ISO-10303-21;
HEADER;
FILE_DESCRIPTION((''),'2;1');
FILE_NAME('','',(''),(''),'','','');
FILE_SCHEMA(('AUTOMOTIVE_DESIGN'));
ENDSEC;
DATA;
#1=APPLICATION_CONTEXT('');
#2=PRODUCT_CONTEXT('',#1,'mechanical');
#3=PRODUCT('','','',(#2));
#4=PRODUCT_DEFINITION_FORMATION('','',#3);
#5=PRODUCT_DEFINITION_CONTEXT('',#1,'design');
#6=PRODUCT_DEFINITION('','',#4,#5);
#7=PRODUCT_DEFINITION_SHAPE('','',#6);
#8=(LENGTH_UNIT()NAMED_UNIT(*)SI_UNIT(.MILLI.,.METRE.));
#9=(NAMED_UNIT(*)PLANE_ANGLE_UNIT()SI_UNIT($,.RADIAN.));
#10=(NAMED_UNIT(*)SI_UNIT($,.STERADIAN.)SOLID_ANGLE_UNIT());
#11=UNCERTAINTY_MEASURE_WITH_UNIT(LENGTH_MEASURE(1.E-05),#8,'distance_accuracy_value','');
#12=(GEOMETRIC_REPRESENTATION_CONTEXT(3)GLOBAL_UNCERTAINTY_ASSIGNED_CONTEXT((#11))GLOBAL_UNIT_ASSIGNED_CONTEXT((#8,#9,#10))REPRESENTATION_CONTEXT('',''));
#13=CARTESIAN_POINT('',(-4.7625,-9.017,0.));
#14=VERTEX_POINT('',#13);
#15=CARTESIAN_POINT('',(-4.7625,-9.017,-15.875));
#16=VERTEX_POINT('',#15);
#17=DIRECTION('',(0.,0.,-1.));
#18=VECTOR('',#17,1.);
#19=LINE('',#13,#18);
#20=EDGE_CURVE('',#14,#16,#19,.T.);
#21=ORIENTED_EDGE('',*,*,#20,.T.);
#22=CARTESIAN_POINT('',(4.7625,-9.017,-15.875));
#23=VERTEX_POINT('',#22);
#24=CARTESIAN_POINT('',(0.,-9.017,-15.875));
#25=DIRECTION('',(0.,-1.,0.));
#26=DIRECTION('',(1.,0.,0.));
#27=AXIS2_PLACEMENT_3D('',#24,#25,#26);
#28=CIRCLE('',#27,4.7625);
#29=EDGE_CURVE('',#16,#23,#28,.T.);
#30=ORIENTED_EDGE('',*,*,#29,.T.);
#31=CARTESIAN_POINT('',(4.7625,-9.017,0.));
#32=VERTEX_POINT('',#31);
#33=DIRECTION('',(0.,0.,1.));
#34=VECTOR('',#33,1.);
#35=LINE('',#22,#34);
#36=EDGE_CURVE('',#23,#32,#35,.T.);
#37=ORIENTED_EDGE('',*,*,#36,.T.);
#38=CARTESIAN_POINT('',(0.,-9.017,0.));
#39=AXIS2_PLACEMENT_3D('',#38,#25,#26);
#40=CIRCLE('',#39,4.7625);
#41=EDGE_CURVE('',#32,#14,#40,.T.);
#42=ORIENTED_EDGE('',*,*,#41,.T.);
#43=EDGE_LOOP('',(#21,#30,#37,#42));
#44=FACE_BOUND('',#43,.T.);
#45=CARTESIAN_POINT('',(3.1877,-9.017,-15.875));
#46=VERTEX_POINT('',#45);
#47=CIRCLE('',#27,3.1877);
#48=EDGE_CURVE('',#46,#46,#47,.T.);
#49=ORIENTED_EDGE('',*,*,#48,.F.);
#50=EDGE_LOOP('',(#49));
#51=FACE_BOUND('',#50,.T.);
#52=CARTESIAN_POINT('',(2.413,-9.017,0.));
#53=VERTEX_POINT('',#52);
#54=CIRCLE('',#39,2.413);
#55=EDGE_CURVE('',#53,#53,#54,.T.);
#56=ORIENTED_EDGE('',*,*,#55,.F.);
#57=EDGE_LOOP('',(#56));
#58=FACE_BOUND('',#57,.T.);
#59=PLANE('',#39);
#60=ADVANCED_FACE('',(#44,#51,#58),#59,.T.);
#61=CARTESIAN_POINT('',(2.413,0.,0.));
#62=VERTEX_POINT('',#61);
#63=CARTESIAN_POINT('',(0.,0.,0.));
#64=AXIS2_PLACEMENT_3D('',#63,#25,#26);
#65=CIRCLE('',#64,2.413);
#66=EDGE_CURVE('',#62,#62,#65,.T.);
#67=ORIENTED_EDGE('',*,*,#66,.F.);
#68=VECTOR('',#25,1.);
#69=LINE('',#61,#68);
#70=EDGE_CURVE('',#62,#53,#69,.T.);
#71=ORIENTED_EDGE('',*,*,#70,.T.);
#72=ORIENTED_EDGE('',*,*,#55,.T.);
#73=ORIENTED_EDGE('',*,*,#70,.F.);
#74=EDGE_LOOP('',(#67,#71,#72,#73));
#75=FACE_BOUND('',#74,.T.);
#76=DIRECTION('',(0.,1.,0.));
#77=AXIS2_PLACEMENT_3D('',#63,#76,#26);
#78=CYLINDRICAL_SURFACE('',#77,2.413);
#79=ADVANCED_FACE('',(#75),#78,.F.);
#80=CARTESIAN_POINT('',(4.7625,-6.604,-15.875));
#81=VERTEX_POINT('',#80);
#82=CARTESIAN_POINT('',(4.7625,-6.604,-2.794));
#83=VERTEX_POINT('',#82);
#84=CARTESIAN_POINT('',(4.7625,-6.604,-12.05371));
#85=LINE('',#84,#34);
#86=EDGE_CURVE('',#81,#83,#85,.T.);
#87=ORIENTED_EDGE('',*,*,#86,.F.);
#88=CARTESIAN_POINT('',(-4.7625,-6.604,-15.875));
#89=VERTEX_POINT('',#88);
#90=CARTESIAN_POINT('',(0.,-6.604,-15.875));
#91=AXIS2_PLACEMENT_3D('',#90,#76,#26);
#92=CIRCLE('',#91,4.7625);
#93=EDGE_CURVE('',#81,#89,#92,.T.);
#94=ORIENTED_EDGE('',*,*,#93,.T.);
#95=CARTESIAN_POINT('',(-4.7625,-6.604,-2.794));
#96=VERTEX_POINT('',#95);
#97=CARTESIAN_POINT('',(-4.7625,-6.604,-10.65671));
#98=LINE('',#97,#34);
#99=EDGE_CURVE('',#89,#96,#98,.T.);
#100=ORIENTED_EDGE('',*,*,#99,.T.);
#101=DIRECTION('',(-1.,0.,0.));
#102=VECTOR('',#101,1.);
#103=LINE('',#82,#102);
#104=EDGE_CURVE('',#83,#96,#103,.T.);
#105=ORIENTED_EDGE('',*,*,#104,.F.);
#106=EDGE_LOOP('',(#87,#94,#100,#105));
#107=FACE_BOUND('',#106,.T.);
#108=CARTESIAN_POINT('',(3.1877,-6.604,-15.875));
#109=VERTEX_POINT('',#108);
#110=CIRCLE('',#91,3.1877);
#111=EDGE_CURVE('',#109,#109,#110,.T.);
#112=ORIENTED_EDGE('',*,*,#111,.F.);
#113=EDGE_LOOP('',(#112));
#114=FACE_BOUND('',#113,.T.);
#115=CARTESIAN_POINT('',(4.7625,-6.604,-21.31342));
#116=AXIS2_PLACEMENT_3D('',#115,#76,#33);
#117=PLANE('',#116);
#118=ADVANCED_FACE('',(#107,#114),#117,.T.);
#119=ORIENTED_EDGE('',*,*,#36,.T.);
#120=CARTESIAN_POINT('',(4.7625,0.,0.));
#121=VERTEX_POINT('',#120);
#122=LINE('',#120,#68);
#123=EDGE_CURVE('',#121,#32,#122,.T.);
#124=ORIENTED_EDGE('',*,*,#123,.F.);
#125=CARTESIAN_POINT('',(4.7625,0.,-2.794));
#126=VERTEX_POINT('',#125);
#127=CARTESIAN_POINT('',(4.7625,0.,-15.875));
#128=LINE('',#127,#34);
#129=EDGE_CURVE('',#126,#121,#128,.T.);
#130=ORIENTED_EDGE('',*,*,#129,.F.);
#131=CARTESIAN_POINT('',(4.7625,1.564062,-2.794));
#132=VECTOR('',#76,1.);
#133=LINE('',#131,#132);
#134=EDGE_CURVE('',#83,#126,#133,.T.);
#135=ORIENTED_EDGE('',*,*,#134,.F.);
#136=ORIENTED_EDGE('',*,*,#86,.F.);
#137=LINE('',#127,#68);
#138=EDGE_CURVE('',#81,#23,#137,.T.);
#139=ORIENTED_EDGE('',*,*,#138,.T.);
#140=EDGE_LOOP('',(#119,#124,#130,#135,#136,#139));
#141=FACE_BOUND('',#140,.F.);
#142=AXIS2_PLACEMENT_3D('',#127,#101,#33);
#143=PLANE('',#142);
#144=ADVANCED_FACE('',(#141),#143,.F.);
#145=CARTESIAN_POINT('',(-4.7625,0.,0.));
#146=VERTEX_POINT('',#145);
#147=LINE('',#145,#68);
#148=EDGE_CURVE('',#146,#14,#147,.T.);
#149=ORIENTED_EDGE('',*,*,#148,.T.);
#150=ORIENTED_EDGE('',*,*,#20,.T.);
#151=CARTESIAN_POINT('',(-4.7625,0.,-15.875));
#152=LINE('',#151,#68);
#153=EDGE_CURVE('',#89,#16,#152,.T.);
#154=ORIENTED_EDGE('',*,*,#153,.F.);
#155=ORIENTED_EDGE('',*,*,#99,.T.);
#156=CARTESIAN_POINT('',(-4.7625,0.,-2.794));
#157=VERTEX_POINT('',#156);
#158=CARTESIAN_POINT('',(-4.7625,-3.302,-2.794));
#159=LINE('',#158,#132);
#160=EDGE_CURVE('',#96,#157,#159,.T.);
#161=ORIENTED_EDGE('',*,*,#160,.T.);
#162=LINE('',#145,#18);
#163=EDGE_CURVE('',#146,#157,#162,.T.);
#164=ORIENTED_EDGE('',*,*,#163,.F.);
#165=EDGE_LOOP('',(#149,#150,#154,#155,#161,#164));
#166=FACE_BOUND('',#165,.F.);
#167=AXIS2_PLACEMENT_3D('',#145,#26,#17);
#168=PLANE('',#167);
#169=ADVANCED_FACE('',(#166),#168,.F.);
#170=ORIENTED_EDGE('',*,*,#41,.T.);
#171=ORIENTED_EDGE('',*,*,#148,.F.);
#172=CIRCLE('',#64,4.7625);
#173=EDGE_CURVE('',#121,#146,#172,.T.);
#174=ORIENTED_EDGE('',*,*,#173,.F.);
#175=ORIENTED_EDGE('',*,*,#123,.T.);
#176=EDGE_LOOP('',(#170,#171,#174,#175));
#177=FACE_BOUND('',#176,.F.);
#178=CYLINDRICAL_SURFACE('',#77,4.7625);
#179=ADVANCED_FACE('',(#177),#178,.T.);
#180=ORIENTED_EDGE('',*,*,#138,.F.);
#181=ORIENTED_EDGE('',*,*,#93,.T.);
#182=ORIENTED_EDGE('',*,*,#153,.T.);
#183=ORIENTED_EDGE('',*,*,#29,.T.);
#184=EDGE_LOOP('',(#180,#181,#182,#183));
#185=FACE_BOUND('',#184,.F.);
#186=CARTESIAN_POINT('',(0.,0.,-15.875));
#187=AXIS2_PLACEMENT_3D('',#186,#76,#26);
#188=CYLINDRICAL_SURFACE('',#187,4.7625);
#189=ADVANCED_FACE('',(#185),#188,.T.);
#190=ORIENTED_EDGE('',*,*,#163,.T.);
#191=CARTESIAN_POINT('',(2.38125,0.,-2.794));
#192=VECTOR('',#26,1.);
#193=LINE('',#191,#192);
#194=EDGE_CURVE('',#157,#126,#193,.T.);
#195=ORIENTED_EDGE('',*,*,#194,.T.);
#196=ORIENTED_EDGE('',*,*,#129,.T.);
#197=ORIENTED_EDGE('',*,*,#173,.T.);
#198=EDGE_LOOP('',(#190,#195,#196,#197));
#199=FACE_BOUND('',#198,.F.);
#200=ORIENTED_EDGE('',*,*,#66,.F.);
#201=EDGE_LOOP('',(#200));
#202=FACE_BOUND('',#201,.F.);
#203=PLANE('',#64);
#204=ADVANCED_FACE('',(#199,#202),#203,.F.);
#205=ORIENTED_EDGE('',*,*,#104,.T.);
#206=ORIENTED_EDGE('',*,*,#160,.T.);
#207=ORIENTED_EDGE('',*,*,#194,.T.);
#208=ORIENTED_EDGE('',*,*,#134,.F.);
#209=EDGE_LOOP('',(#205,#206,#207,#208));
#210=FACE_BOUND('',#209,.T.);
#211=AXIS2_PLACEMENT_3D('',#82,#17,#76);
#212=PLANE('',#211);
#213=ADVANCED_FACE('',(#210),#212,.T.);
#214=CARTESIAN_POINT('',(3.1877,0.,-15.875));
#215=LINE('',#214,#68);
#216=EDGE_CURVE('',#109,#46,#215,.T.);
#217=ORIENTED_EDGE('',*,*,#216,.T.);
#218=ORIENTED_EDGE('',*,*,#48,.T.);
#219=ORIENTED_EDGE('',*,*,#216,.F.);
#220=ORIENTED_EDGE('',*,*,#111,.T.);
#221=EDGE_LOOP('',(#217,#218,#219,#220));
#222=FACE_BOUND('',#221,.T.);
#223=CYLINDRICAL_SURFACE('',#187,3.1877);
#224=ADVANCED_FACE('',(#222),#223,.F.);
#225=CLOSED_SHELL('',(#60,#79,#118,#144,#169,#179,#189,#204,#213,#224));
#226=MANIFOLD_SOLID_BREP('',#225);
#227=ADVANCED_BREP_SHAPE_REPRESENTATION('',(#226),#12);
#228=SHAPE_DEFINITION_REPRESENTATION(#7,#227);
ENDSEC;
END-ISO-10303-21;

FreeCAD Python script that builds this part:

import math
import FreeCAD as App
import Part
import Sketcher

V = App.Vector
Q = App.Units.Quantity

doc = App.newDocument("Part")
body = doc.addObject("PartDesign::Body", "Body")

sketch1 = body.newObject("Sketcher::SketchObject", "Sketch")
sketch1.AttachmentSupport = (doc.getObject("XZ_Plane"), [""])
sketch1.MapMode = "FlatFace"
sketch1.addGeometry([
    Part.ArcOfCircle(Part.Circle(V(0, 0, 0), V(0, 0, 1), 4.8), math.radians(0), math.radians(180)),
    Part.LineSegment(V(-4.8, 0, 0), V(-4.8, -15.9, 0)),
    Part.ArcOfCircle(Part.Circle(V(0, -15.9, 0), V(0, 0, 1), 4.8), math.radians(180), math.radians(360)),
    Part.LineSegment(V(4.8, -15.9, 0), V(4.8, 0, 0)),
    Part.Circle(V(0, -15.9, 0), V(0, 0, 1), 3.2),
    Part.Circle(V(0, 0, 0), V(0, 0, 1), 2.4),
], False)
sketch1.addConstraint([
    Sketcher.Constraint("Tangent", 0, 2, 1, 1),
    Sketcher.Constraint("Tangent", 1, 2, 2, 1),
    Sketcher.Constraint("Tangent", 2, 2, 3, 1),
    Sketcher.Constraint("Tangent", 3, 2, 0, 1),
    Sketcher.Constraint("Vertical", 1),
    Sketcher.Constraint("Vertical", 3),
    Sketcher.Constraint("Coincident", 0, 3, -1, 1),
    Sketcher.Constraint("Coincident", 5, 3, -1, 1),
    Sketcher.Constraint("Coincident", 4, 3, 2, 3),
    Sketcher.Constraint("Diameter", 5, Q("0.19 in")),
    Sketcher.Constraint("Diameter", 4, Q("0.251 in")),
    Sketcher.Constraint("Radius", 0, Q("0.1875 in")),
    Sketcher.Constraint("DistanceY", 1, 2, 1, 1, Q("0.625 in")),
])
pad1 = body.newObject("PartDesign::Pad", "Pad")
pad1.Profile = sketch1
pad1.Length = Q("0.355 in")

sketch2 = body.newObject("Sketcher::SketchObject", "Sketch001")
sketch2.AttachmentSupport = (doc.getObject("YZ_Plane"), [""])
sketch2.MapMode = "FlatFace"
sketch2.AttachmentOffset = App.Placement(V(0, 0, 0.1875 * 25.4), App.Rotation())
sketch2.addGeometry([
    Part.LineSegment(V(-7, -3, 0), V(-7, -21, 0)),
    Part.LineSegment(V(-7, -21, 0), V(10, -21, 0)),
    Part.LineSegment(V(10, -21, 0), V(10, -3, 0)),
    Part.LineSegment(V(10, -3, 0), V(-7, -3, 0)),
], False)
sketch2.addConstraint([
    Sketcher.Constraint("Coincident", 0, 2, 1, 1),
    Sketcher.Constraint("Coincident", 1, 2, 2, 1),
    Sketcher.Constraint("Coincident", 2, 2, 3, 1),
    Sketcher.Constraint("Coincident", 3, 2, 0, 1),
    Sketcher.Constraint("Vertical", 0),
    Sketcher.Constraint("Horizontal", 1),
    Sketcher.Constraint("Vertical", 2),
    Sketcher.Constraint("Horizontal", 3),
    Sketcher.Constraint("DistanceX", 0, 2, -1, 1, Q("0.26 in")),
    Sketcher.Constraint("DistanceY", 2, 2, -1, 1, Q("0.11 in")),
    Sketcher.Constraint("DistanceY", 0, 2, 0, 1, Q("18.51942 mm")),
    Sketcher.Constraint("DistanceX", 1, 1, 1, 2, Q("16.336124 mm")),
])
pocket1 = body.newObject("PartDesign::Pocket", "Pocket")
pocket1.Profile = sketch2
pocket1.Type = "ThroughAll"

doc.recompute()
